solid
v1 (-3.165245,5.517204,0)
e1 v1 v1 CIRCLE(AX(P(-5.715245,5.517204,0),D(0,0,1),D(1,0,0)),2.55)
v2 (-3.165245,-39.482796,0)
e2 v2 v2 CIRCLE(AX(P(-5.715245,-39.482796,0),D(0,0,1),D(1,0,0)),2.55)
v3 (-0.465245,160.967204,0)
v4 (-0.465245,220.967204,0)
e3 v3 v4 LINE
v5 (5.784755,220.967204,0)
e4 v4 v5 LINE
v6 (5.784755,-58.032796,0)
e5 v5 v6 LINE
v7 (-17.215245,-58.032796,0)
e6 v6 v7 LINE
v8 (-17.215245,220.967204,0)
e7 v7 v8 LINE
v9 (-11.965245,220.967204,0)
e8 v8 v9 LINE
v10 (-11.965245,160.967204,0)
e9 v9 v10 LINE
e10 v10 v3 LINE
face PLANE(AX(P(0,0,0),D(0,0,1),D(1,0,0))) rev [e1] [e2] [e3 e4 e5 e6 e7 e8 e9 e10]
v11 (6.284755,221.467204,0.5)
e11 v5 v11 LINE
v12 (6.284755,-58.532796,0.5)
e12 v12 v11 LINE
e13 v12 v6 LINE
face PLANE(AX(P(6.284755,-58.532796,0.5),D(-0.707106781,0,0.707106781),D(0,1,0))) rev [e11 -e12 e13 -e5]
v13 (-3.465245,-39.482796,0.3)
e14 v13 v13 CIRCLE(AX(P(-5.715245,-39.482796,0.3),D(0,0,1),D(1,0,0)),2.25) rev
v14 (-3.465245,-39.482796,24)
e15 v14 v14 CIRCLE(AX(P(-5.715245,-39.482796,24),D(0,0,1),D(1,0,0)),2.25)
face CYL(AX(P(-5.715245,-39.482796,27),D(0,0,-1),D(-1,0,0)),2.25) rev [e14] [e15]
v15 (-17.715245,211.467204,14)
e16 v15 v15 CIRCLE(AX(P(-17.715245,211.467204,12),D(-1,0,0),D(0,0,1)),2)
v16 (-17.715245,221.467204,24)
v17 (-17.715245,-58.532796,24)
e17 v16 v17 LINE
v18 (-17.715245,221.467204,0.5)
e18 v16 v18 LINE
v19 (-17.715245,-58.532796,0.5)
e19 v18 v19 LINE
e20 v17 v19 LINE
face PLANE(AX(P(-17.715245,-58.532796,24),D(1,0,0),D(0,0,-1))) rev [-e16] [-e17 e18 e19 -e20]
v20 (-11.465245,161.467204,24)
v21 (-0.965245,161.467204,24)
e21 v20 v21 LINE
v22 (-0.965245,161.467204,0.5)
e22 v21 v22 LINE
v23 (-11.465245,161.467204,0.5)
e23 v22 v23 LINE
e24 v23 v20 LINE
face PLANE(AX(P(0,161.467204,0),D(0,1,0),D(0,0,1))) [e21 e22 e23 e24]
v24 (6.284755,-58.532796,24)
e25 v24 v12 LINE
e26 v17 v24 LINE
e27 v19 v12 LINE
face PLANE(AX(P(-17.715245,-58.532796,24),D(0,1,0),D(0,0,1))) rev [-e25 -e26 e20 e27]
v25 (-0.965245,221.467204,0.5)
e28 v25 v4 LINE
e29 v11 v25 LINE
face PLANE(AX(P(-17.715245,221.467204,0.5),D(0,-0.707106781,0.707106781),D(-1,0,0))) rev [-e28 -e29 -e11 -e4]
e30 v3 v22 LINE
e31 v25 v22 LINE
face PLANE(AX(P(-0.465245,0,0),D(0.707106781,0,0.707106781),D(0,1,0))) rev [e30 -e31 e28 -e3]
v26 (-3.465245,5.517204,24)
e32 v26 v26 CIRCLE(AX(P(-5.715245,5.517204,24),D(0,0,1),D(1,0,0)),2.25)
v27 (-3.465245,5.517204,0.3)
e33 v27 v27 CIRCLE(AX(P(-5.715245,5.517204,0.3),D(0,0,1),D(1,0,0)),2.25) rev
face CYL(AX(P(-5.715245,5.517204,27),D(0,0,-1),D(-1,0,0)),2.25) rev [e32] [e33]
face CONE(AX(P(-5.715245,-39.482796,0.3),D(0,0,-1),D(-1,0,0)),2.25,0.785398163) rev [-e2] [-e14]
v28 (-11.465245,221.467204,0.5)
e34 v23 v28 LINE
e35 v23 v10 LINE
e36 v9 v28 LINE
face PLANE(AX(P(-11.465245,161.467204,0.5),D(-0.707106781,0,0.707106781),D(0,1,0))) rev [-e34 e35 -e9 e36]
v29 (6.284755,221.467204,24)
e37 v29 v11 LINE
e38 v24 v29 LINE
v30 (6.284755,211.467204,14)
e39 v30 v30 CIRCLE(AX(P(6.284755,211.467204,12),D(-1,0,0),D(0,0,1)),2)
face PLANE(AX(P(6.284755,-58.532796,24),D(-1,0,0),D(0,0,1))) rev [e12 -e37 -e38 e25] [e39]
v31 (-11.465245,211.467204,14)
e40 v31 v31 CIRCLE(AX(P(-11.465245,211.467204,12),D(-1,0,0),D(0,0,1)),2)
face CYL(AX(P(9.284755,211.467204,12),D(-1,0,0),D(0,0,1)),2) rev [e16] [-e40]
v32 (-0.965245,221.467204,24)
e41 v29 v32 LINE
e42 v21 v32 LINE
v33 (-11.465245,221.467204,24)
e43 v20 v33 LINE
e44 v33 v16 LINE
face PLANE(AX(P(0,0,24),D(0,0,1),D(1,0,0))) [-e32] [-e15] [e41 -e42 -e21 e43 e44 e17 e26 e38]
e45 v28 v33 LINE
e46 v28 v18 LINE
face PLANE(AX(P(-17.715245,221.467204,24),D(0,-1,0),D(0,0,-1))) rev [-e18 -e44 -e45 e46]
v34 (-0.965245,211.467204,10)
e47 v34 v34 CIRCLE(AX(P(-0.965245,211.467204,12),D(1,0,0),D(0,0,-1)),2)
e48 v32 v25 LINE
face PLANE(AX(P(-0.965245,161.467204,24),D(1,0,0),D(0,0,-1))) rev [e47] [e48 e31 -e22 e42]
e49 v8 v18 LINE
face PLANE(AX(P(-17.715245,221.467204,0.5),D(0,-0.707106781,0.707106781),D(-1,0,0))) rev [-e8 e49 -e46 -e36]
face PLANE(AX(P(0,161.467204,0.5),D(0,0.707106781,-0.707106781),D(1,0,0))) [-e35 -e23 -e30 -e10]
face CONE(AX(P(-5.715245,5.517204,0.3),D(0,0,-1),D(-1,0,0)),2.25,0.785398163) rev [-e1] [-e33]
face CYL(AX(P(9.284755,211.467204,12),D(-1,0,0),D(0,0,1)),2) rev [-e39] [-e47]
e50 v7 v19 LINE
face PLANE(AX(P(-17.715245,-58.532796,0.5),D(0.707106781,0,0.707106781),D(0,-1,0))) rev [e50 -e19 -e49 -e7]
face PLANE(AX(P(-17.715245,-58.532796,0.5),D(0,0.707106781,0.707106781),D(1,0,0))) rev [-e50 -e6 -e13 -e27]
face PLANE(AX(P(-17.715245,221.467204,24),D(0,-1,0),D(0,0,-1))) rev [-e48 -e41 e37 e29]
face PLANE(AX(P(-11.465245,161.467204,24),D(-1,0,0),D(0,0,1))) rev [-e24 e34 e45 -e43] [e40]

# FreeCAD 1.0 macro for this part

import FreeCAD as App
import Part
import Sketcher
Q = App.Units.Quantity


def edges_at(feature, points):
    """Names of the edges that pass closest to the given points."""
    edges = feature.Shape.Edges
    near = lambda p: min(range(len(edges)), key=lambda i: edges[i].distToShape(Part.Vertex(*p))[0])
    return sorted({f"Edge{near(p) + 1}" for p in points})


def add_polygon(sketch, points):
    """Adds a closed chain of lines whose ends are joined by coincident constraints."""
    first, n = sketch.GeometryCount, len(points)
    for a, b in zip(points, points[1:] + points[:1]):
        sketch.addGeometry(Part.LineSegment(App.Vector(*a, 0), App.Vector(*b, 0)), False)
    for i in range(n):
        sketch.addConstraint(Sketcher.Constraint("Coincident", first + i, 2, first + (i + 1) % n, 1))

doc = App.newDocument("Part")
body = doc.addObject("PartDesign::Body", "Body")

# Sketch on XY plane
sketch1 = body.newObject("Sketcher::SketchObject", "Sketch")
sketch1.AttachmentSupport = (doc.getObject("XY_Plane"), [""])
sketch1.MapMode = "FlatFace"
add_polygon(sketch1, [(-18, -59), (6, -59), (6, 221), (-18, 221)])  # lines 0-3
sketch1.addConstraint([
    Sketcher.Constraint("Horizontal", 0),
    Sketcher.Constraint("Vertical", 1),
    Sketcher.Constraint("Horizontal", 2),
    Sketcher.Constraint("Vertical", 3),
    Sketcher.Constraint("DistanceX", 0, 1, 0, 2, Q("24 mm")),
    Sketcher.Constraint("DistanceY", 1, 1, 1, 2, Q("280 mm")),
    Sketcher.Constraint("DistanceX", -1, 1, 0, 2, Q("6.284755 mm")),
    Sketcher.Constraint("DistanceY", 0, 2, -1, 1, Q("58.532796 mm")),
])
pad1 = body.newObject("PartDesign::Pad", "Pad")
pad1.Profile = sketch1
pad1.Length = 24

# Sketch on XZ plane
sketch2 = body.newObject("Sketcher::SketchObject", "Sketch001")
sketch2.AttachmentSupport = (doc.getObject("XZ_Plane"), [""])
sketch2.MapMode = "FlatFace"
sketch2.AttachmentOffset = App.Placement(App.Vector(0, 0, -221.467204), App.Rotation())
add_polygon(sketch2, [(-1, 24), (-1, 0), (-11, 0), (-11, 24)])  # lines 0-3
sketch2.addConstraint([
    Sketcher.Constraint("Vertical", 0),
    Sketcher.Constraint("Horizontal", 1),
    Sketcher.Constraint("Vertical", 2),
    Sketcher.Constraint("Horizontal", 3),
    Sketcher.Constraint("PointOnObject", 0, 2, -1),
    Sketcher.Constraint("DistanceY", 0, 2, 0, 1, Q("24 mm")),
    Sketcher.Constraint("DistanceX", 1, 2, 1, 1, Q("10.5 mm")),
    Sketcher.Constraint("DistanceX", 0, 2, -1, 1, Q("0.965245 mm")),
])
pocket1 = body.newObject("PartDesign::Pocket", "Pocket")
pocket1.Profile = sketch2
pocket1.Length = 60
pocket1.Reversed = True

# Sketch on YZ plane
sketch3 = body.newObject("Sketcher::SketchObject", "Sketch002")
sketch3.AttachmentSupport = (doc.getObject("YZ_Plane"), [""])
sketch3.MapMode = "FlatFace"
sketch3.AttachmentOffset = App.Placement(App.Vector(0, 0, -17.715245), App.Rotation())
sketch3.addGeometry(Part.Circle(App.Vector(211.5, 12, 0), App.Vector(0, 0, 1), 2), False)
sketch3.addConstraint([
    Sketcher.Constraint("Diameter", 0, Q("4 mm")),
    Sketcher.Constraint("DistanceY", -1, 1, 0, 3, Q("12 mm")),
    Sketcher.Constraint("DistanceX", -1, 1, 0, 3, Q("211.467204 mm")),
])
pocket2 = body.newObject("PartDesign::Pocket", "Pocket001")
pocket2.Profile = sketch3
pocket2.Length = 27
pocket2.Reversed = True

# Sketch on XY plane
sketch4 = body.newObject("Sketcher::SketchObject", "Sketch003")
sketch4.AttachmentSupport = (doc.getObject("XY_Plane"), [""])
sketch4.MapMode = "FlatFace"
sketch4.addGeometry([
    Part.Circle(App.Vector(-5.7, -39.5, 0), App.Vector(0, 0, 1), 2.2),
    Part.Circle(App.Vector(-5.7, 5.5, 0), App.Vector(0, 0, 1), 2.2),
], False)
sketch4.addConstraint([
    Sketcher.Constraint("Equal", 0, 1),
    Sketcher.Constraint("Vertical", 0, 3, 1, 3),
    Sketcher.Constraint("Diameter", 0, Q("4.5 mm")),
    Sketcher.Constraint("DistanceY", 0, 3, 1, 3, Q("45 mm")),
    Sketcher.Constraint("DistanceX", 0, 3, -1, 1, Q("5.715245 mm")),
    Sketcher.Constraint("DistanceY", 0, 3, -1, 1, Q("39.482796 mm")),
])
pocket3 = body.newObject("PartDesign::Pocket", "Pocket002")
pocket3.Profile = sketch4
pocket3.Length = 27
pocket3.Reversed = True
doc.recompute()

chamfer = body.newObject("PartDesign::Chamfer", "Chamfer")
chamfer.Base = (pocket3, edges_at(pocket3, [(6.285, 81.467, 0)]))
chamfer.Size = 0.5
doc.recompute()

chamfer2 = body.newObject("PartDesign::Chamfer", "Chamfer001")
chamfer2.Base = (chamfer, edges_at(chamfer, [(-11.465, 191.467, 0)]))
chamfer2.Size = 0.5
doc.recompute()

chamfer3 = body.newObject("PartDesign::Chamfer", "Chamfer002")
chamfer3.Base = (chamfer2, edges_at(chamfer2, [(-0.965, 191.467, 0)]))
chamfer3.Size = 0.5
doc.recompute()

chamfer4 = body.newObject("PartDesign::Chamfer", "Chamfer003")
chamfer4.Base = (chamfer3, edges_at(chamfer3, [(-14.84, 221.467, 0)]))
chamfer4.Size = 0.5
doc.recompute()

chamfer5 = body.newObject("PartDesign::Chamfer", "Chamfer004")
chamfer5.Base = (chamfer4, edges_at(chamfer4, [(2.66, 221.467, 0)]))
chamfer5.Size = 0.5
doc.recompute()

chamfer6 = body.newObject("PartDesign::Chamfer", "Chamfer005")
chamfer6.Base = (chamfer5, edges_at(chamfer5, [(-6.215, 161.467, 0)]))
chamfer6.Size = 0.5
doc.recompute()

chamfer7 = body.newObject("PartDesign::Chamfer", "Chamfer006")
chamfer7.Base = (chamfer6, edges_at(chamfer6, [(-17.715, 81.217, 0)]))
chamfer7.Size = 0.5
doc.recompute()

chamfer8 = body.newObject("PartDesign::Chamfer", "Chamfer007")
chamfer8.Base = (chamfer7, edges_at(chamfer7, [(-3.465, 5.517, 0)]))
chamfer8.Size = 0.3
doc.recompute()

chamfer9 = body.newObject("PartDesign::Chamfer", "Chamfer008")
chamfer9.Base = (chamfer8, edges_at(chamfer8, [(-3.465, -39.483, 0)]))
chamfer9.Size = 0.3
doc.recompute()

chamfer10 = body.newObject("PartDesign::Chamfer", "Chamfer009")
chamfer10.Base = (chamfer9, edges_at(chamfer9, [(-5.715, -58.533, 0)]))
chamfer10.Size = 0.5

doc.recompute()
